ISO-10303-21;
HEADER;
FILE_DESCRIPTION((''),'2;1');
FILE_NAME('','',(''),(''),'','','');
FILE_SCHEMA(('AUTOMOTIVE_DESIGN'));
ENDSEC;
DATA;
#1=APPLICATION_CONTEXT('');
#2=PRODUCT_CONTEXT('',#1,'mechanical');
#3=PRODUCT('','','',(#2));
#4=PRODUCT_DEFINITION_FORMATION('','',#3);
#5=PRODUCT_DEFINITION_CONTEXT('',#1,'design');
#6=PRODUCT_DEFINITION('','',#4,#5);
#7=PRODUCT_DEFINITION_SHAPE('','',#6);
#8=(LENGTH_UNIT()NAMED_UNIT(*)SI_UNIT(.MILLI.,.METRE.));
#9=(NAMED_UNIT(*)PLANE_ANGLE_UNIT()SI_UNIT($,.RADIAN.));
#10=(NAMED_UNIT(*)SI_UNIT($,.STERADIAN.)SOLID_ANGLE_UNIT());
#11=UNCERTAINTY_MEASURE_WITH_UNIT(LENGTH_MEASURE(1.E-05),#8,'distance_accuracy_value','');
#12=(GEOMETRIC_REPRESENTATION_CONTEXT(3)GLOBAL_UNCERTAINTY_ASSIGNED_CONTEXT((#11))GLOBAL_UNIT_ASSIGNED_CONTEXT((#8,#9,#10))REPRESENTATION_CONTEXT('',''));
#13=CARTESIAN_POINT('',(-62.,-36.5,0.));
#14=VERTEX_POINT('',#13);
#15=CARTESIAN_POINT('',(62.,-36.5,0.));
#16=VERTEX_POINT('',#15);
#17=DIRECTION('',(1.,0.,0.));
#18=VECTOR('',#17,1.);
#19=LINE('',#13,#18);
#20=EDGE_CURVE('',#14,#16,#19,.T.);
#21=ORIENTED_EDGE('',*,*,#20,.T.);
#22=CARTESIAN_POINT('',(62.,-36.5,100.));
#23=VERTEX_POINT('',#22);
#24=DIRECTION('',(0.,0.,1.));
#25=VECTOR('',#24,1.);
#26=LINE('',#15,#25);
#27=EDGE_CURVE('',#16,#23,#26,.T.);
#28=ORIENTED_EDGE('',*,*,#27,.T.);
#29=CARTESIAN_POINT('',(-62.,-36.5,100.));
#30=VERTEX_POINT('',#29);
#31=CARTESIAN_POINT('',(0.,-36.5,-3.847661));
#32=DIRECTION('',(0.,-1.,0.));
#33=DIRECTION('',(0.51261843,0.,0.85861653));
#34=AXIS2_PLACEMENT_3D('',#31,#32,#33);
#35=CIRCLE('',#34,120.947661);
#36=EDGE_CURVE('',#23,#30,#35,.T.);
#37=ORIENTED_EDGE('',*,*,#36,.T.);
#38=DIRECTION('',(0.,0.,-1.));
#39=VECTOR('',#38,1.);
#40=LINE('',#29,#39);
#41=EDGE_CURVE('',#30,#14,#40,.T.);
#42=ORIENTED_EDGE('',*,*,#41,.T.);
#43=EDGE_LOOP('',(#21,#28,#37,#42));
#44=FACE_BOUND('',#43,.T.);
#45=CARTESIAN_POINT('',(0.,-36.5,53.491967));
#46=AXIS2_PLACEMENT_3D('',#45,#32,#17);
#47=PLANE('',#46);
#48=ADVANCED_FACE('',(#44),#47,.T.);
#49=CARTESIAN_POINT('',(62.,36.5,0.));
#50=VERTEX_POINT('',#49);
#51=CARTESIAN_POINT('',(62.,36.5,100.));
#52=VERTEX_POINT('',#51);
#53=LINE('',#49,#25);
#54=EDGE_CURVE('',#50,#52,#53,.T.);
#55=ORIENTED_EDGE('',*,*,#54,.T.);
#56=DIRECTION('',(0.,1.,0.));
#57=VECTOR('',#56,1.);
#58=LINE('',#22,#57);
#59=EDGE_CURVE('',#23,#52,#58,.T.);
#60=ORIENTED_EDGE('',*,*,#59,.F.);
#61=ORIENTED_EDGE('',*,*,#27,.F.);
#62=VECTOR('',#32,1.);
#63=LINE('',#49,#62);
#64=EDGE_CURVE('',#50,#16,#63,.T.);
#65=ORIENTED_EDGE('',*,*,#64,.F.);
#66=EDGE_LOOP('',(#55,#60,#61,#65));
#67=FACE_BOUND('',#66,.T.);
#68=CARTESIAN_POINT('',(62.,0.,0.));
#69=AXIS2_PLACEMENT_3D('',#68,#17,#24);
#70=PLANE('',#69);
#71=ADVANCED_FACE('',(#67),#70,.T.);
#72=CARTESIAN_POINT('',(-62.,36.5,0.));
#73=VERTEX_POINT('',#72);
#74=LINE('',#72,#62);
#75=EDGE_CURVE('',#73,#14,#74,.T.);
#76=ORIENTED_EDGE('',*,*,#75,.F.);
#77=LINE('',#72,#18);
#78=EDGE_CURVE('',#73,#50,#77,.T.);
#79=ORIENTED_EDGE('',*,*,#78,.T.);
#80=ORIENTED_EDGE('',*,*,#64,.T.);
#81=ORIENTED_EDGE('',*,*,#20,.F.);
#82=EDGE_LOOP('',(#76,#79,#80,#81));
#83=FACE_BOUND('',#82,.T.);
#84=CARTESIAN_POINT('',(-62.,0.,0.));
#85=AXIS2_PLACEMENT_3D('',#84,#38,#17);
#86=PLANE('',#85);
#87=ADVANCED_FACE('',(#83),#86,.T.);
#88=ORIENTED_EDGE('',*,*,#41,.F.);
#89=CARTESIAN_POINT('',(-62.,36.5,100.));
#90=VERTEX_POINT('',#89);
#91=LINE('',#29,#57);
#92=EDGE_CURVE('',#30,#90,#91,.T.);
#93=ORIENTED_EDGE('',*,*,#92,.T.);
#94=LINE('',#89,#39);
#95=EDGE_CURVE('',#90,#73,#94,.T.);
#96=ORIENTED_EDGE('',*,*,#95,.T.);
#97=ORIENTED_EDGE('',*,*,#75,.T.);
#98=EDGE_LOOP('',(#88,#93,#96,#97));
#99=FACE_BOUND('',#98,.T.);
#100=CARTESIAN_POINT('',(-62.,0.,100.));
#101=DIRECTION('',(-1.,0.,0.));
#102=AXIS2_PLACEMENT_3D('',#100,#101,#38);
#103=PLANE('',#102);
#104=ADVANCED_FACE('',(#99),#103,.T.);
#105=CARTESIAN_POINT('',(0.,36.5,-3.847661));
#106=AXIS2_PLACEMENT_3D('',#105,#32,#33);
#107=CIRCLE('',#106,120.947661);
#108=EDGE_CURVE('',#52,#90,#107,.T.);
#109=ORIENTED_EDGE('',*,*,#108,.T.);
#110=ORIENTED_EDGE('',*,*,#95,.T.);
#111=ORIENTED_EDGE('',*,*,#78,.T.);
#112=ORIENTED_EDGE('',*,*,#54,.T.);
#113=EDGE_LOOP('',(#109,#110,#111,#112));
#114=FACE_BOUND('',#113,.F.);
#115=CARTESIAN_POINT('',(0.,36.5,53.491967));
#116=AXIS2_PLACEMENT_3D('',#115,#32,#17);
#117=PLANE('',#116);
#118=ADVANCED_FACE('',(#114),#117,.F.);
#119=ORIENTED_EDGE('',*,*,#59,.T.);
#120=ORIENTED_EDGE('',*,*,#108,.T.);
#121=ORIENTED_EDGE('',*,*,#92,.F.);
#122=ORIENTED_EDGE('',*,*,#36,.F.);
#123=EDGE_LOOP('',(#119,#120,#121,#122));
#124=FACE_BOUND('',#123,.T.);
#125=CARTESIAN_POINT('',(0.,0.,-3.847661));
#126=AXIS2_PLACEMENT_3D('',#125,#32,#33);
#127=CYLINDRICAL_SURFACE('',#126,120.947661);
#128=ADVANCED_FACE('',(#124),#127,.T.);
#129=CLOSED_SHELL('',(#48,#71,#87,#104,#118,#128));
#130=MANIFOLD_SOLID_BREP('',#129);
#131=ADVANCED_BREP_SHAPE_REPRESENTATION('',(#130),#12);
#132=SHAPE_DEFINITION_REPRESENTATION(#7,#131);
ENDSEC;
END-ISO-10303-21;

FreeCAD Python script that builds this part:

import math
import FreeCAD as App
import Part
import Sketcher
from FreeCAD import Vector
Q = App.Units.Quantity

doc = App.newDocument("Part")
body = doc.addObject("PartDesign::Body", "Body")

sketch1 = doc.addObject("Sketcher::SketchObject", "Sketch")
body.addObject(sketch1)
sketch1.AttachmentSupport = (doc.XZ_Plane, [""])
sketch1.MapMode = "FlatFace"
sketch1.addGeometry([
    Part.LineSegment(Vector(-62, 100, 0), Vector(-62, 0, 0)),
    Part.LineSegment(Vector(-62, 0, 0), Vector(62, 0, 0)),
    Part.LineSegment(Vector(62, 0, 0), Vector(62, 100, 0)),
    Part.ArcOfCircle(Part.Circle(Vector(0, -4, 0), Vector(0, 0, 1), 121), math.radians(59), math.radians(121)),
], False)
sketch1.addConstraint([
    Sketcher.Constraint("Coincident", 0, 2, 1, 1),
    Sketcher.Constraint("Coincident", 1, 2, 2, 1),
    Sketcher.Constraint("Coincident", 2, 2, 3, 1),
    Sketcher.Constraint("Coincident", 3, 2, 0, 1),
    Sketcher.Constraint("Vertical", 0),
    Sketcher.Constraint("Horizontal", 1),
    Sketcher.Constraint("Vertical", 2),
    Sketcher.Constraint("Symmetric", 0, 2, 1, 2, -1, 1),
    Sketcher.Constraint("PointOnObject", 3, 3, -2),
    Sketcher.Constraint("DistanceX", 1, 1, 1, 2, Q("124 mm")),
    Sketcher.Constraint("DistanceY", 0, 2, 0, 1, Q("100 mm")),
    Sketcher.Constraint("Radius", 3, Q("120.947661 mm")),
])
pad1 = doc.addObject("PartDesign::Pad", "Pad")
body.addObject(pad1)
pad1.Profile = sketch1
pad1.Length = 73
pad1.Midplane = True

doc.recompute()
